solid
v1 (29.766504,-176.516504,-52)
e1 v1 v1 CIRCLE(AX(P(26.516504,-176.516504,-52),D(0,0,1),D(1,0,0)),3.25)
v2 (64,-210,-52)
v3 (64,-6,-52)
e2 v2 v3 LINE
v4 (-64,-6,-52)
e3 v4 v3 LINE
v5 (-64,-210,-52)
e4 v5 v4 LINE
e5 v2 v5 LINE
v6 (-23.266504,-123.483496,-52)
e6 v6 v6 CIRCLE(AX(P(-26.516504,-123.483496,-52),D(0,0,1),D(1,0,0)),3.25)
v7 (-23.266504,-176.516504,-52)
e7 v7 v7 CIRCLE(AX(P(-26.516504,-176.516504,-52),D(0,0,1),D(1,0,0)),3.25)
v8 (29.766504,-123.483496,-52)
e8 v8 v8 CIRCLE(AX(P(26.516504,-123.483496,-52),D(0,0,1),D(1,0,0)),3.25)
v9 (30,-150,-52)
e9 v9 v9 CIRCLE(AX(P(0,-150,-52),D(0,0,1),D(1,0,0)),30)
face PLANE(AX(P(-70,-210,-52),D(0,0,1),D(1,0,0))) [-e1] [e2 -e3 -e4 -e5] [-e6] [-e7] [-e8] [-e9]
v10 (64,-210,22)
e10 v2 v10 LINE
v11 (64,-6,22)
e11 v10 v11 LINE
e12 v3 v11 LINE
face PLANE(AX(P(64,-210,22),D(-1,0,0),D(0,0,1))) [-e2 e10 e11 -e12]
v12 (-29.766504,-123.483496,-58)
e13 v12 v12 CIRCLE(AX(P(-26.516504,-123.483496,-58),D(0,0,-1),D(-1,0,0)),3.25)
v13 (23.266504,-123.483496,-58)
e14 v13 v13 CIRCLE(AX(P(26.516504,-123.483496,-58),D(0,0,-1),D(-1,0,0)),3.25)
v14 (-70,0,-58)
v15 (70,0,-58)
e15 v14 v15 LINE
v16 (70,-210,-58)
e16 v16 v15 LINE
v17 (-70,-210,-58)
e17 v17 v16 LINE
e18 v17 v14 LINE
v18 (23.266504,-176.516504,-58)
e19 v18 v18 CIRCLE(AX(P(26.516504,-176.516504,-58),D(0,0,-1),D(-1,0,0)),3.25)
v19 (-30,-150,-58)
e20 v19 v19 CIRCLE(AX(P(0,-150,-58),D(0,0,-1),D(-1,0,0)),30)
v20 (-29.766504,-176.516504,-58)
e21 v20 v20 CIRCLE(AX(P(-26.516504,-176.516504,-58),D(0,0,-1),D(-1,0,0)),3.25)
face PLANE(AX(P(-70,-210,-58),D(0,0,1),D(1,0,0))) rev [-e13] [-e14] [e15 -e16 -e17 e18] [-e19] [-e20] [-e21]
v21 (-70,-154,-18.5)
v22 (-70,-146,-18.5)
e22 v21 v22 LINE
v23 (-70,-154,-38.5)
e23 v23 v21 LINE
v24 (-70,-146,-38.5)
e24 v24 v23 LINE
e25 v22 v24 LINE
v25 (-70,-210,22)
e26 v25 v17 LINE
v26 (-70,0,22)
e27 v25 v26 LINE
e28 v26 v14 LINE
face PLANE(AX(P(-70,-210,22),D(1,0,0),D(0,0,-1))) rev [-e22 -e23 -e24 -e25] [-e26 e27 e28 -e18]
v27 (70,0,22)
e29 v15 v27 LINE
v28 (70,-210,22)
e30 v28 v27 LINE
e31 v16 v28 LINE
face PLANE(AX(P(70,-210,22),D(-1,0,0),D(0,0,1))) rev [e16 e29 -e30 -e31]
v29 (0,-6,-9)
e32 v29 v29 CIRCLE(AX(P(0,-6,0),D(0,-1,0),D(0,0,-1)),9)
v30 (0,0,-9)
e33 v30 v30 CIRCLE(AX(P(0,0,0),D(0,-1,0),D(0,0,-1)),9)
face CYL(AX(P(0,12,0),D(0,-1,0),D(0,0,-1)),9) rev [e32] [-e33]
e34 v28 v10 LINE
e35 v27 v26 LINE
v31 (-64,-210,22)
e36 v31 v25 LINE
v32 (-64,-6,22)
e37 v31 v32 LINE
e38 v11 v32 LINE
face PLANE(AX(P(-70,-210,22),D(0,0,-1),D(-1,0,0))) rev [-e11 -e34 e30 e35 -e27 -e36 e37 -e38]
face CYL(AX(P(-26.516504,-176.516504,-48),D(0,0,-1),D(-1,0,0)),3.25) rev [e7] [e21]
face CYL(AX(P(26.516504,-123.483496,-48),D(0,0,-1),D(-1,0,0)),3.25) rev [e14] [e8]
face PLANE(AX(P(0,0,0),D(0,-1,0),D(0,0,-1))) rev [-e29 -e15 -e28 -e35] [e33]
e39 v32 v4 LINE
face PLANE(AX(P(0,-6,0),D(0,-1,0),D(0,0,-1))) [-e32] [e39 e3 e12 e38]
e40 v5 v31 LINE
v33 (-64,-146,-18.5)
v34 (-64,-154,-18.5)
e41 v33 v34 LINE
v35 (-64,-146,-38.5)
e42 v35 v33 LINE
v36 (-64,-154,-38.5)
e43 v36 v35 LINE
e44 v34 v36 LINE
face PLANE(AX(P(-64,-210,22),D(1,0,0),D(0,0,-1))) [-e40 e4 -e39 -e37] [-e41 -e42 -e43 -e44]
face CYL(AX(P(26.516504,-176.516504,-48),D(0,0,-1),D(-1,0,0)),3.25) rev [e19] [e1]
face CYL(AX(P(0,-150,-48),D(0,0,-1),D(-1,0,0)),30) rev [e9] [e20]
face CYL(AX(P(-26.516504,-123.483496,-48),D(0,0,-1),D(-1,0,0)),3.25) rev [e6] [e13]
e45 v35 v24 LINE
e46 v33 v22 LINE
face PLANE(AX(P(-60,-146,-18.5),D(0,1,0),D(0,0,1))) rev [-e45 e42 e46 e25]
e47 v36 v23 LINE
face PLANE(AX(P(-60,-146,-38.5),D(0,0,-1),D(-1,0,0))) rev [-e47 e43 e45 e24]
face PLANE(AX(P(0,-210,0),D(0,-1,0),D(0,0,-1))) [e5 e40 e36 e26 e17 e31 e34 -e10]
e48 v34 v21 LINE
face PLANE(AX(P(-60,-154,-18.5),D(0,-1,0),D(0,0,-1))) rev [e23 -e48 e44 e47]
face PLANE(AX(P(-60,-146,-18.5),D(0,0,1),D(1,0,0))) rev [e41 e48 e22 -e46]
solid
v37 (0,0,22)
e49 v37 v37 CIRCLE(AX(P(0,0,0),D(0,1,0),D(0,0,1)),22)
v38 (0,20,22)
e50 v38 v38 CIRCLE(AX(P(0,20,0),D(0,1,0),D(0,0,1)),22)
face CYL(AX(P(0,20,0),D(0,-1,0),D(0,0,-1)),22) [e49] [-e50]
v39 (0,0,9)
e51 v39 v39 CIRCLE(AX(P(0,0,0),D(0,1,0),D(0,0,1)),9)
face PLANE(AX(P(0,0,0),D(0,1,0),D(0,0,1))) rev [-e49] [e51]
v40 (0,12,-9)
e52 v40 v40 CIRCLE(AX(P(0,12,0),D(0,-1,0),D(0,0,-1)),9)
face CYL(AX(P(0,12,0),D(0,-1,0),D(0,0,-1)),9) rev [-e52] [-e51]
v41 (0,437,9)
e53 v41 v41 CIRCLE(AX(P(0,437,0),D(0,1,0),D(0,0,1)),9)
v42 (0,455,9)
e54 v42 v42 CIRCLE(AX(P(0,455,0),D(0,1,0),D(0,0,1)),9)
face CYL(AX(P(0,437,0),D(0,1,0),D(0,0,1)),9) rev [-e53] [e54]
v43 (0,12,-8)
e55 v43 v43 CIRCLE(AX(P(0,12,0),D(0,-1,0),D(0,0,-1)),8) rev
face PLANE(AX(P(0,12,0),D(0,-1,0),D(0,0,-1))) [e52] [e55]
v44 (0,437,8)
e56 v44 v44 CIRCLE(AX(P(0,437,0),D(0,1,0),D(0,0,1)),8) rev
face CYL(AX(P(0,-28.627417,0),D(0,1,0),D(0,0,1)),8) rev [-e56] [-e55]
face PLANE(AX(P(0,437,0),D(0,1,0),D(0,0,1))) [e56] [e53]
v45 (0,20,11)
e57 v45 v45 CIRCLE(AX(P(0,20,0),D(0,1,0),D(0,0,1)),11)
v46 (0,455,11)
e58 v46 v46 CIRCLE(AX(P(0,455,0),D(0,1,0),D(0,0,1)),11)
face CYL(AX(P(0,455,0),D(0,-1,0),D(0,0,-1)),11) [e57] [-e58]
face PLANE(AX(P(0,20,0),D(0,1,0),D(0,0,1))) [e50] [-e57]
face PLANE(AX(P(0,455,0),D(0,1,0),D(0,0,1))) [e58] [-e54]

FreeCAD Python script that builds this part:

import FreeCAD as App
import Part
import Sketcher

V = App.Vector


def faces_at(feature, points):
    """Names of the faces that lie closest to the given points."""
    faces = feature.Shape.Faces
    near = lambda p: min(range(len(faces)), key=lambda i: faces[i].distToShape(Part.Vertex(*p))[0])
    return sorted({f"Face{near(p) + 1}" for p in points})


def add_polygon(sketch, points):
    """Adds a closed chain of lines whose ends are joined by coincident constraints."""
    first, n = sketch.GeometryCount, len(points)
    for a, b in zip(points, points[1:] + points[:1]):
        sketch.addGeometry(Part.LineSegment(App.Vector(*a, 0), App.Vector(*b, 0)), False)
    for i in range(n):
        sketch.addConstraint(Sketcher.Constraint("Coincident", first + i, 2, first + (i + 1) % n, 1))

doc = App.newDocument("Part")
body = doc.addObject("PartDesign::Body", "Body")

# Sketch on XZ plane
sketch1 = body.newObject("Sketcher::SketchObject", "Sketch")
sketch1.AttachmentSupport = (doc.getObject("XZ_Plane"), [""])
sketch1.MapMode = "FlatFace"
sketch1.addGeometry(Part.Circle(V(0, 0, 0), V(0, 0, 1), 22), False)
sketch1.addConstraint(Sketcher.Constraint("Coincident", 0, 3, -1, 1))
sketch1.addConstraint(Sketcher.Constraint("Diameter", 0, 44.0))
pad1 = body.newObject("PartDesign::Pad", "Pad")
pad1.Profile = sketch1
pad1.Length = 20
pad1.Reversed = True

# Sketch on XZ plane
sketch2 = body.newObject("Sketcher::SketchObject", "Sketch001")
sketch2.AttachmentSupport = (doc.getObject("XZ_Plane"), [""])
sketch2.MapMode = "FlatFace"
sketch2.AttachmentOffset = App.Placement(V(0, 0, -20), App.Rotation())
sketch2.addGeometry(Part.Circle(V(0, 0, 0), V(0, 0, 1), 11), False)
sketch2.addConstraint(Sketcher.Constraint("Coincident", 0, 3, -1, 1))
sketch2.addConstraint(Sketcher.Constraint("Diameter", 0, 22.0))
pad2 = body.newObject("PartDesign::Pad", "Pad001")
pad2.Profile = sketch2
pad2.Length = 435
pad2.Reversed = True
body2 = doc.addObject("PartDesign::Body", "Body001")

# Sketch on XZ plane
sketch3 = body2.newObject("Sketcher::SketchObject", "Sketch002")
sketch3.AttachmentSupport = (doc.getObject("XZ_Plane001"), [""])
sketch3.MapMode = "FlatFace"
add_polygon(sketch3, [(-70, 22), (-70, -58), (70, -58), (70, 22)])  # lines 0-3
sketch3.addConstraint(Sketcher.Constraint("Vertical", 0))
sketch3.addConstraint(Sketcher.Constraint("Horizontal", 1))
sketch3.addConstraint(Sketcher.Constraint("Vertical", 2))
sketch3.addConstraint(Sketcher.Constraint("Horizontal", 3))
sketch3.addConstraint(Sketcher.Constraint("DistanceX", 1, 1, 1, 2, 140.0))
sketch3.addConstraint(Sketcher.Constraint("DistanceY", 0, 2, 0, 1, 80.0))
sketch3.addConstraint(Sketcher.Constraint("DistanceX", 0, 2, -1, 1, 70.0))
sketch3.addConstraint(Sketcher.Constraint("DistanceY", 0, 2, -1, 1, 58.0))
pad3 = body2.newObject("PartDesign::Pad", "Pad002")
pad3.Profile = sketch3
pad3.Length = 210
doc.recompute()

thickness = body2.newObject("PartDesign::Thickness", "Thickness")
thickness.Base = (pad3, faces_at(pad3, [(0, -105, 22)]))
thickness.Value = 6
thickness.Reversed = True
thickness.Join = "Intersection"
body3 = doc.addObject("PartDesign::Body", "Body002")

# Sketch on XZ plane
sketch4 = body3.newObject("Sketcher::SketchObject", "Sketch003")
sketch4.AttachmentSupport = (doc.getObject("XZ_Plane002"), [""])
sketch4.MapMode = "FlatFace"
sketch4.AttachmentOffset = App.Placement(V(0, 0, -455), App.Rotation())
sketch4.addGeometry(Part.Circle(V(0, 0, 0), V(0, 0, 1), 8), False)
sketch4.addConstraint(Sketcher.Constraint("Coincident", 0, 3, -1, 1))
sketch4.addConstraint(Sketcher.Constraint("Diameter", 0, 16.0))
pad4 = body3.newObject("PartDesign::Pad", "Pad003")
pad4.Profile = sketch4
pad4.Length = 461
doc.recompute()

body4 = doc.addObject("PartDesign::Body", "Body003")
body4.BaseFeature = body3
boolean = body.newObject("PartDesign::Boolean", "Boolean")
boolean.Type = "Cut"
boolean.addObjects([body4])
doc.recompute()

# Sketch on XZ plane
sketch5 = body.newObject("Sketcher::SketchObject", "Sketch004")
sketch5.AttachmentSupport = (doc.getObject("XZ_Plane"), [""])
sketch5.MapMode = "FlatFace"
sketch5.AttachmentOffset = App.Placement(V(0, 0, -455), App.Rotation())
sketch5.addGeometry(Part.Circle(V(0, 0, 0), V(0, 0, 1), 9), False)
sketch5.addConstraint(Sketcher.Constraint("Coincident", 0, 3, -1, 1))
sketch5.addConstraint(Sketcher.Constraint("Diameter", 0, 18.0))
pocket1 = body.newObject("PartDesign::Pocket", "Pocket")
pocket1.Profile = sketch5
pocket1.Length = 18
pocket1.Reversed = True
doc.recompute()

boolean2 = body2.newObject("PartDesign::Boolean", "Boolean001")
boolean2.Type = "Cut"
boolean2.addObjects([body3])

# Sketch on XY plane
sketch6 = body2.newObject("Sketcher::SketchObject", "Sketch005")
sketch6.AttachmentSupport = (doc.getObject("XY_Plane001"), [""])
sketch6.MapMode = "FlatFace"
sketch6.AttachmentOffset = App.Placement(V(0, 0, 22), App.Rotation())
add_polygon(sketch6, [(-64, -204), (-64, -210), (64, -210), (64, -204)])  # lines 0-3
sketch6.addConstraint(Sketcher.Constraint("Vertical", 0))
sketch6.addConstraint(Sketcher.Constraint("Horizontal", 1))
sketch6.addConstraint(Sketcher.Constraint("Vertical", 2))
sketch6.addConstraint(Sketcher.Constraint("Horizontal", 3))
sketch6.addConstraint(Sketcher.Constraint("DistanceX", 1, 1, 1, 2, 128.0))
sketch6.addConstraint(Sketcher.Constraint("DistanceY", 0, 2, 0, 1, 6.0))
sketch6.addConstraint(Sketcher.Constraint("DistanceX", 0, 2, -1, 1, 64.0))
sketch6.addConstraint(Sketcher.Constraint("DistanceY", 0, 2, -1, 1, 210.0))
pocket2 = body2.newObject("PartDesign::Pocket", "Pocket001")
pocket2.Profile = sketch6
pocket2.Length = 74

# Sketch on XY plane
sketch7 = body2.newObject("Sketcher::SketchObject", "Sketch006")
sketch7.AttachmentSupport = (doc.getObject("XY_Plane001"), [""])
sketch7.MapMode = "FlatFace"
sketch7.AttachmentOffset = App.Placement(V(0, 0, -58), App.Rotation())
sketch7.addGeometry(Part.Circle(V(0, -150, 0), V(0, 0, 1), 30), False)
sketch7.addGeometry(Part.Circle(V(-26.516504, -123.483496, 0), V(0, 0, 1), 3.25), False)
sketch7.addGeometry(Part.Circle(V(-26.516504, -176.516504, 0), V(0, 0, 1), 3.25), False)
sketch7.addGeometry(Part.Circle(V(26.516504, -176.516504, 0), V(0, 0, 1), 3.25), False)
sketch7.addGeometry(Part.Circle(V(26.516504, -123.483496, 0), V(0, 0, 1), 3.25), False)
sketch7.addConstraint(Sketcher.Constraint("Equal", 1, 2))
sketch7.addConstraint(Sketcher.Constraint("Equal", 2, 3))
sketch7.addConstraint(Sketcher.Constraint("Equal", 3, 4))
sketch7.addConstraint(Sketcher.Constraint("Symmetric", 2, 3, 3, 3, -2))
sketch7.addConstraint(Sketcher.Constraint("Symmetric", 1, 3, 4, 3, -2))
sketch7.addConstraint(Sketcher.Constraint("PointOnObject", 0, 3, -2))
sketch7.addConstraint(Sketcher.Constraint("Vertical", 1, 3, 2, 3))
sketch7.addConstraint(Sketcher.Constraint("Diameter", 0, 60.0))
sketch7.addConstraint(Sketcher.Constraint("Diameter", 1, 6.5))
sketch7.addConstraint(Sketcher.Constraint("DistanceY", 0, 3, -1, 1, 150.0))
sketch7.addConstraint(Sketcher.Constraint("DistanceY", 2, 3, 1, 3, 53.033009))
sketch7.addConstraint(Sketcher.Constraint("DistanceX", 2, 3, 3, 3, 53.033009))
sketch7.addConstraint(Sketcher.Constraint("DistanceY", 1, 3, -1, 1, 123.483496))
pocket3 = body2.newObject("PartDesign::Pocket", "Pocket002")
pocket3.Profile = sketch7
pocket3.Length = 10
pocket3.Reversed = True
body5 = doc.addObject("PartDesign::Body", "Body004")

# Sketch on XZ plane
sketch8 = body5.newObject("Sketcher::SketchObject", "Sketch007")
sketch8.AttachmentSupport = (doc.getObject("XZ_Plane004"), [""])
sketch8.MapMode = "FlatFace"
sketch8.AttachmentOffset = App.Placement(V(0, 0, 6), App.Rotation())
sketch8.addGeometry(Part.Circle(V(0, 0, 0), V(0, 0, 1), 9), False)
sketch8.addConstraint(Sketcher.Constraint("Coincident", 0, 3, -1, 1))
sketch8.addConstraint(Sketcher.Constraint("Diameter", 0, 18.0))
pad5 = body5.newObject("PartDesign::Pad", "Pad004")
pad5.Profile = sketch8
pad5.Length = 18
pad5.Reversed = True
doc.recompute()

body6 = doc.addObject("PartDesign::Body", "Body005")
body6.BaseFeature = body5
boolean3 = body.newObject("PartDesign::Boolean", "Boolean002")
boolean3.Type = "Cut"
boolean3.addObjects([body6])
doc.recompute()

boolean4 = body2.newObject("PartDesign::Boolean", "Boolean003")
boolean4.Type = "Cut"
boolean4.addObjects([body5])

# Sketch on YZ plane
sketch9 = body2.newObject("Sketcher::SketchObject", "Sketch008")
sketch9.AttachmentSupport = (doc.getObject("YZ_Plane001"), [""])
sketch9.MapMode = "FlatFace"
sketch9.AttachmentOffset = App.Placement(V(0, 0, -70), App.Rotation())
add_polygon(sketch9, [(-146, -38.5), (-154, -38.5), (-154, -18.5), (-146, -18.5)])  # lines 0-3
sketch9.addConstraint(Sketcher.Constraint("Horizontal", 0))
sketch9.addConstraint(Sketcher.Constraint("Vertical", 1))
sketch9.addConstraint(Sketcher.Constraint("Horizontal", 2))
sketch9.addConstraint(Sketcher.Constraint("Vertical", 3))
sketch9.addConstraint(Sketcher.Constraint("DistanceX", 0, 2, 0, 1, 8.0))
sketch9.addConstraint(Sketcher.Constraint("DistanceY", 1, 1, 1, 2, 20.0))
sketch9.addConstraint(Sketcher.Constraint("DistanceX", 0, 2, -1, 1, 154.0))
sketch9.addConstraint(Sketcher.Constraint("DistanceY", 0, 2, -1, 1, 38.5))
pocket4 = body2.newObject("PartDesign::Pocket", "Pocket003")
pocket4.Profile = sketch9
pocket4.Length = 10
pocket4.Reversed = True

doc.recompute()
